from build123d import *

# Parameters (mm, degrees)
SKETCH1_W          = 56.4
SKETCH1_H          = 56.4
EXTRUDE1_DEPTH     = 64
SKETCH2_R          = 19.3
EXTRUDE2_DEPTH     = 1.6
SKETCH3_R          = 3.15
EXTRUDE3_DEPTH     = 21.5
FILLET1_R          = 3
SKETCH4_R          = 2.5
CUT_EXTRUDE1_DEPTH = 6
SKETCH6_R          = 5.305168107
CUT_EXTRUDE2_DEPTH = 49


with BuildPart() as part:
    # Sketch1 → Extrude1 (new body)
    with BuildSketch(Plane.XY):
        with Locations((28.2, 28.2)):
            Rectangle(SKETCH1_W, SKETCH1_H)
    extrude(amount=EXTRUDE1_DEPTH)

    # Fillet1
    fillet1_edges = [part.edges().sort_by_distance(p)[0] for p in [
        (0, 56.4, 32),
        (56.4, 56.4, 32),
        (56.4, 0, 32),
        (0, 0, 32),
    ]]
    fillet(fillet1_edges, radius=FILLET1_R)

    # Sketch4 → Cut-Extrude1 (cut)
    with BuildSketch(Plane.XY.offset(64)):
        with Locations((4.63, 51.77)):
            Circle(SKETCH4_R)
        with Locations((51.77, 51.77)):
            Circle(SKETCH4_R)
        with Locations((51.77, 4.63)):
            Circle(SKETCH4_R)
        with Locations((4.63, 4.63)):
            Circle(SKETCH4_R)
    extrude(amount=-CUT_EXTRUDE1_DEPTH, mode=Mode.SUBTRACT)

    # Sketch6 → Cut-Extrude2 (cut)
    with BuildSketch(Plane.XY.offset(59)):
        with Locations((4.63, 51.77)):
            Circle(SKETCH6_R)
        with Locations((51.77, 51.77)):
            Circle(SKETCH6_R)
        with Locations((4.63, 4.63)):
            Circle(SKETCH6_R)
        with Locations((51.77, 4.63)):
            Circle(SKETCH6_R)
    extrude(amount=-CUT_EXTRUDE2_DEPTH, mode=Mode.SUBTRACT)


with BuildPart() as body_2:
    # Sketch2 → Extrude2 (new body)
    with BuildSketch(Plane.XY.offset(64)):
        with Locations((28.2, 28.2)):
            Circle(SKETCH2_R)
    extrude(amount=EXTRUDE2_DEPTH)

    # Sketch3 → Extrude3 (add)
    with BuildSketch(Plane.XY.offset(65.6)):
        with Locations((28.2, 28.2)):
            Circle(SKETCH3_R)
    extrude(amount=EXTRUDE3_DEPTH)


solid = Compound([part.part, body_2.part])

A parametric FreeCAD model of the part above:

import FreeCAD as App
import Part
import Sketcher
from FreeCAD import Vector


def edges_at(feature, points):
    """Names of the edges that pass closest to the given points."""
    edges = feature.Shape.Edges
    near = lambda p: min(range(len(edges)), key=lambda i: edges[i].distToShape(Part.Vertex(*p))[0])
    return sorted({f"Edge{near(p) + 1}" for p in points})


def add_polygon(sketch, points):
    """Adds a closed chain of lines whose ends are joined by coincident constraints."""
    first, n = sketch.GeometryCount, len(points)
    for a, b in zip(points, points[1:] + points[:1]):
        sketch.addGeometry(Part.LineSegment(App.Vector(*a, 0), App.Vector(*b, 0)), False)
    for i in range(n):
        sketch.addConstraint(Sketcher.Constraint("Coincident", first + i, 2, first + (i + 1) % n, 1))

doc = App.newDocument("Part")
params = doc.addObject("Spreadsheet::Sheet", "Params")
for row, (alias, value) in enumerate([
    ("sketch1_width", "56.4 mm"),
    ("pad1_length", "64 mm"),
    ("fillet_radius", "3 mm"),
    ("sketch2_diameter", "5 mm"),
    ("pocket1_length", "6 mm"),
    ("pocket2_length", "49 mm"),
    ("sketch4_diameter", "38.6 mm"),
    ("pad2_length", "1.6 mm"),
    ("sketch5_diameter", "6.3 mm"),
    ("pad3_length", "21.5 mm"),
], start=1):
    params.set(f"A{row}", alias)
    params.set(f"B{row}", "=" + value)
    params.setAlias(f"B{row}", alias)

body = doc.addObject("PartDesign::Body", "Body")

# Sketch on XY plane
sketch1 = body.newObject("Sketcher::SketchObject", "Sketch")
sketch1.AttachmentSupport = (doc.getObject("XY_Plane"), [""])
sketch1.MapMode = "FlatFace"
add_polygon(sketch1, [(0, 56.4), (0, 0), (56.4, 0), (56.4, 56.4)])  # lines 0-3
sketch1.addConstraint(Sketcher.Constraint("Vertical", 0))
sketch1.addConstraint(Sketcher.Constraint("Horizontal", 1))
sketch1.addConstraint(Sketcher.Constraint("Vertical", 2))
sketch1.addConstraint(Sketcher.Constraint("Horizontal", 3))
sketch1.addConstraint(Sketcher.Constraint("Coincident", 0, 2, -1, 1))
sketch1.addConstraint(Sketcher.Constraint("Equal", 3, 0))
sketch1.addConstraint(Sketcher.Constraint("DistanceX", 1, 1, 1, 2, 56.4))
sketch1.setExpression("Constraints[10]", "Params.sketch1_width")
pad1 = body.newObject("PartDesign::Pad", "Pad")
pad1.Profile = sketch1
pad1.setExpression("Length", "Params.pad1_length")
doc.recompute()

fillet = body.newObject("PartDesign::Fillet", "Fillet")
fillet.Base = (pad1, edges_at(pad1, [
    (0, 56.4, 32),
    (56.4, 56.4, 32),
    (56.4, 0, 32),
    (0, 0, 32),
]))
fillet.setExpression("Radius", "Params.fillet_radius")

# Sketch on XY plane
sketch2 = body.newObject("Sketcher::SketchObject", "Sketch001")
sketch2.AttachmentSupport = (doc.getObject("XY_Plane"), [""])
sketch2.MapMode = "FlatFace"
sketch2.AttachmentOffset = App.Placement(Vector(0, 0, 64), App.Rotation())
sketch2.addGeometry(Part.Circle(Vector(4.63, 51.77, 0), Vector(0, 0, 1), 2.5), False)
sketch2.addGeometry(Part.Circle(Vector(51.77, 51.77, 0), Vector(0, 0, 1), 2.5), False)
sketch2.addGeometry(Part.Circle(Vector(51.77, 4.63, 0), Vector(0, 0, 1), 2.5), False)
sketch2.addGeometry(Part.Circle(Vector(4.63, 4.63, 0), Vector(0, 0, 1), 2.5), False)
sketch2.addConstraint(Sketcher.Constraint("Equal", 0, 1))
sketch2.addConstraint(Sketcher.Constraint("Equal", 1, 2))
sketch2.addConstraint(Sketcher.Constraint("Equal", 2, 3))
sketch2.addConstraint(Sketcher.Constraint("Horizontal", 0, 3, 1, 3))
sketch2.addConstraint(Sketcher.Constraint("Horizontal", 2, 3, 3, 3))
sketch2.addConstraint(Sketcher.Constraint("Vertical", 1, 3, 2, 3))
sketch2.addConstraint(Sketcher.Constraint("Vertical", 0, 3, 3, 3))
sketch2.addConstraint(Sketcher.Constraint("Diameter", 0, 5.0))
sketch2.addConstraint(Sketcher.Constraint("DistanceX", -1, 1, 0, 3, 4.63))
sketch2.addConstraint(Sketcher.Constraint("DistanceY", -1, 1, 0, 3, 51.77))
sketch2.addConstraint(Sketcher.Constraint("DistanceX", -1, 1, 1, 3, 51.77))
sketch2.addConstraint(Sketcher.Constraint("DistanceY", -1, 1, 2, 3, 4.63))
sketch2.setExpression("Constraints[7]", "Params.sketch2_diameter")
pocket1 = body.newObject("PartDesign::Pocket", "Pocket")
pocket1.Profile = sketch2
pocket1.setExpression("Length", "Params.pocket1_length")

# Sketch on XY plane
sketch3 = body.newObject("Sketcher::SketchObject", "Sketch002")
sketch3.AttachmentSupport = (doc.getObject("XY_Plane"), [""])
sketch3.MapMode = "FlatFace"
sketch3.AttachmentOffset = App.Placement(Vector(0, 0, 59), App.Rotation())
sketch3.addGeometry(Part.Circle(Vector(4.63, 51.77, 0), Vector(0, 0, 1), 5.305168), False)
sketch3.addGeometry(Part.Circle(Vector(51.77, 51.77, 0), Vector(0, 0, 1), 5.305168), False)
sketch3.addGeometry(Part.Circle(Vector(4.63, 4.63, 0), Vector(0, 0, 1), 5.305168), False)
sketch3.addGeometry(Part.Circle(Vector(51.77, 4.63, 0), Vector(0, 0, 1), 5.305168), False)
sketch3.addConstraint(Sketcher.Constraint("Equal", 0, 1))
sketch3.addConstraint(Sketcher.Constraint("Equal", 1, 2))
sketch3.addConstraint(Sketcher.Constraint("Equal", 2, 3))
sketch3.addConstraint(Sketcher.Constraint("Horizontal", 0, 3, 1, 3))
sketch3.addConstraint(Sketcher.Constraint("Horizontal", 2, 3, 3, 3))
sketch3.addConstraint(Sketcher.Constraint("Vertical", 0, 3, 2, 3))
sketch3.addConstraint(Sketcher.Constraint("Vertical", 1, 3, 3, 3))
sketch3.addConstraint(Sketcher.Constraint("DistanceX", -1, 1, 0, 3, 4.63))
sketch3.addConstraint(Sketcher.Constraint("DistanceY", -1, 1, 0, 3, 51.77))
sketch3.addConstraint(Sketcher.Constraint("DistanceX", -1, 1, 1, 3, 51.77))
sketch3.addConstraint(Sketcher.Constraint("DistanceY", -1, 1, 2, 3, 4.63))
sketch3.addConstraint(Sketcher.Constraint("Diameter", 0, 10.610336))
pocket2 = body.newObject("PartDesign::Pocket", "Pocket001")
pocket2.Profile = sketch3
pocket2.setExpression("Length", "Params.pocket2_length")
body2 = doc.addObject("PartDesign::Body", "Body001")

# Sketch on XY plane
sketch4 = body2.newObject("Sketcher::SketchObject", "Sketch003")
sketch4.AttachmentSupport = (doc.getObject("XY_Plane001"), [""])
sketch4.MapMode = "FlatFace"
sketch4.AttachmentOffset = App.Placement(Vector(0, 0, 64), App.Rotation())
sketch4.addGeometry(Part.Circle(Vector(28.2, 28.2, 0), Vector(0, 0, 1), 19.3), False)
sketch4.addConstraint(Sketcher.Constraint("Diameter", 0, 38.6))
sketch4.addConstraint(Sketcher.Constraint("DistanceX", -1, 1, 0, 3, 28.2))
sketch4.addConstraint(Sketcher.Constraint("DistanceY", -1, 1, 0, 3, 28.2))
sketch4.setExpression("Constraints[0]", "Params.sketch4_diameter")
pad2 = body2.newObject("PartDesign::Pad", "Pad001")
pad2.Profile = sketch4
pad2.setExpression("Length", "Params.pad2_length")

# Sketch on XY plane
sketch5 = body2.newObject("Sketcher::SketchObject", "Sketch004")
sketch5.AttachmentSupport = (doc.getObject("XY_Plane001"), [""])
sketch5.MapMode = "FlatFace"
sketch5.AttachmentOffset = App.Placement(Vector(0, 0, 65.6), App.Rotation())
sketch5.addGeometry(Part.Circle(Vector(28.2, 28.2, 0), Vector(0, 0, 1), 3.15), False)
sketch5.addConstraint(Sketcher.Constraint("Diameter", 0, 6.3))
sketch5.addConstraint(Sketcher.Constraint("DistanceX", -1, 1, 0, 3, 28.2))
sketch5.addConstraint(Sketcher.Constraint("DistanceY", -1, 1, 0, 3, 28.2))
sketch5.setExpression("Constraints[0]", "Params.sketch5_diameter")
pad3 = body2.newObject("PartDesign::Pad", "Pad002")
pad3.Profile = sketch5
pad3.setExpression("Length", "Params.pad3_length")

doc.recompute()
